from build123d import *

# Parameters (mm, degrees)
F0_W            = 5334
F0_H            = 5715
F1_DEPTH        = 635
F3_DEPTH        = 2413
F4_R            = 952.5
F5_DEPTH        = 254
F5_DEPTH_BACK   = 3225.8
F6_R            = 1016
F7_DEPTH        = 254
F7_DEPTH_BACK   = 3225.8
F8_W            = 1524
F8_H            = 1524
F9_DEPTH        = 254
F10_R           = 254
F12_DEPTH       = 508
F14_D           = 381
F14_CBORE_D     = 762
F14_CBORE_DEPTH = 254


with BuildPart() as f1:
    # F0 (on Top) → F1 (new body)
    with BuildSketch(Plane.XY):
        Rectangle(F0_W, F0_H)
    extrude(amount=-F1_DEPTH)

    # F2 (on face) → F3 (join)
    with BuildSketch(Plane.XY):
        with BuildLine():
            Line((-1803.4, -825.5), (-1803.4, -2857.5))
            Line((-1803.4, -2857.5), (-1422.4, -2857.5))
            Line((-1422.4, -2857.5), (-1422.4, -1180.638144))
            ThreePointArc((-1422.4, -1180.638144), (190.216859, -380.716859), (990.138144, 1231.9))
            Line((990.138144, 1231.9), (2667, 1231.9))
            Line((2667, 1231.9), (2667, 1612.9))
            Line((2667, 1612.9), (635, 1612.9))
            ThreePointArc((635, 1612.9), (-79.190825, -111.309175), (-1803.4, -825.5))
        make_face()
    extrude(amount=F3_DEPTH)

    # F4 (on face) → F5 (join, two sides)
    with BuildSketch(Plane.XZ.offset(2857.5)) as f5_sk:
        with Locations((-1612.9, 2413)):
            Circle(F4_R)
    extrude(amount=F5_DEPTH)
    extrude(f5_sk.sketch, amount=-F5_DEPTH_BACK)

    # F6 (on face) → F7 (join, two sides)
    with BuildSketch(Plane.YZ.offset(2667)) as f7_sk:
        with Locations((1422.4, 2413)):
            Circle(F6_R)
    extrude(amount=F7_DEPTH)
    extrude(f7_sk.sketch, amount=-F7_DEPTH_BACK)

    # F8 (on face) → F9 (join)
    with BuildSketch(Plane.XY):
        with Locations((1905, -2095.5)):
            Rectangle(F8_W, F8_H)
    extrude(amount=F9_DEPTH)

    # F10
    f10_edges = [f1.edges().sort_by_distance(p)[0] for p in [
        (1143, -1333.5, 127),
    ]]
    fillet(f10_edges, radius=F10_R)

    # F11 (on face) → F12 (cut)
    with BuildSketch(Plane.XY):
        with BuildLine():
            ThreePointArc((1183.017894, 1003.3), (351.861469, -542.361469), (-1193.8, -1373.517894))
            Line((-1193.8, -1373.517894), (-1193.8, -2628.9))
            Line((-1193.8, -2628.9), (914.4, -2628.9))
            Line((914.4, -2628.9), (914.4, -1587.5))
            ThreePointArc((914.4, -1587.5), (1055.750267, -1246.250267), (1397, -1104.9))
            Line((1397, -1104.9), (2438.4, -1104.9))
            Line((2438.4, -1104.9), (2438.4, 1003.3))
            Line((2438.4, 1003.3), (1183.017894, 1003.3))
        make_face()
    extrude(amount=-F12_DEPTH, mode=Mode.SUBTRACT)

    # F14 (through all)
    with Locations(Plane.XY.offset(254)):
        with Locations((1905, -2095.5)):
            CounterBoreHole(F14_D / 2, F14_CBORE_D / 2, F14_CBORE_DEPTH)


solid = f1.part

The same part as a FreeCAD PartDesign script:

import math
import FreeCAD as App
import Part
import Sketcher

V = App.Vector
Q = App.Units.Quantity


def edges_at(feature, points):
    """Names of the edges that pass closest to the given points."""
    edges = feature.Shape.Edges
    near = lambda p: min(range(len(edges)), key=lambda i: edges[i].distToShape(Part.Vertex(*p))[0])
    return sorted({f"Edge{near(p) + 1}" for p in points})


def add_polygon(sketch, points):
    """Adds a closed chain of lines whose ends are joined by coincident constraints."""
    first, n = sketch.GeometryCount, len(points)
    for a, b in zip(points, points[1:] + points[:1]):
        sketch.addGeometry(Part.LineSegment(App.Vector(*a, 0), App.Vector(*b, 0)), False)
    for i in range(n):
        sketch.addConstraint(Sketcher.Constraint("Coincident", first + i, 2, first + (i + 1) % n, 1))

doc = App.newDocument("Part")
body = doc.addObject("PartDesign::Body", "Body")

# Sketch on XY plane
sketch1 = body.newObject("Sketcher::SketchObject", "Sketch")
sketch1.AttachmentSupport = (doc.getObject("XY_Plane"), [""])
sketch1.MapMode = "FlatFace"
add_polygon(sketch1, [(-2667, 2858), (-2667, -2858), (2667, -2858), (2667, 2858)])  # lines 0-3
sketch1.addConstraint(Sketcher.Constraint("Vertical", 0))
sketch1.addConstraint(Sketcher.Constraint("Horizontal", 1))
sketch1.addConstraint(Sketcher.Constraint("Vertical", 2))
sketch1.addConstraint(Sketcher.Constraint("Horizontal", 3))
sketch1.addConstraint(Sketcher.Constraint("Symmetric", 0, 2, 2, 2, -1, 1))
sketch1.addConstraint(Sketcher.Constraint("DistanceX", 1, 1, 1, 2, Q("210 in")))
sketch1.addConstraint(Sketcher.Constraint("DistanceY", 0, 2, 0, 1, Q("225 in")))
pad1 = body.newObject("PartDesign::Pad", "Pad")
pad1.Profile = sketch1
pad1.Length = Q("25 in")
pad1.Reversed = True

# Sketch on XY plane
sketch2 = body.newObject("Sketcher::SketchObject", "Sketch001")
sketch2.AttachmentSupport = (doc.getObject("XY_Plane"), [""])
sketch2.MapMode = "FlatFace"
sketch2.addGeometry(Part.LineSegment(V(-1803, -826, 0), V(-1803, -2858, 0)), False)
sketch2.addGeometry(Part.LineSegment(V(-1803, -2858, 0), V(-1422, -2858, 0)), False)
sketch2.addGeometry(Part.LineSegment(V(-1422, -2858, 0), V(-1422, -1181, 0)), False)
sketch2.addGeometry(Part.ArcOfCircle(Part.Circle(V(-1803, 1613, 0), V(0, 0, 1), 2819), math.radians(-82), math.radians(-8)), False)
sketch2.addGeometry(Part.LineSegment(V(990, 1232, 0), V(2667, 1232, 0)), False)
sketch2.addGeometry(Part.LineSegment(V(2667, 1232, 0), V(2667, 1613, 0)), False)
sketch2.addGeometry(Part.LineSegment(V(2667, 1613, 0), V(635, 1613, 0)), False)
sketch2.addGeometry(Part.ArcOfCircle(Part.Circle(V(-1803, 1613, 0), V(0, 0, 1), 2438), math.radians(-90), math.radians(0)), False)
sketch2.addConstraint(Sketcher.Constraint("Coincident", 0, 2, 1, 1))
sketch2.addConstraint(Sketcher.Constraint("Coincident", 1, 2, 2, 1))
sketch2.addConstraint(Sketcher.Constraint("Coincident", 2, 2, 3, 1))
sketch2.addConstraint(Sketcher.Constraint("Coincident", 3, 2, 4, 1))
sketch2.addConstraint(Sketcher.Constraint("Coincident", 4, 2, 5, 1))
sketch2.addConstraint(Sketcher.Constraint("Coincident", 5, 2, 6, 1))
sketch2.addConstraint(Sketcher.Constraint("Coincident", 6, 2, 7, 2))
sketch2.addConstraint(Sketcher.Constraint("Coincident", 7, 1, 0, 1))
sketch2.addConstraint(Sketcher.Constraint("Vertical", 0))
sketch2.addConstraint(Sketcher.Constraint("Horizontal", 1))
sketch2.addConstraint(Sketcher.Constraint("Vertical", 2))
sketch2.addConstraint(Sketcher.Constraint("Horizontal", 4))
sketch2.addConstraint(Sketcher.Constraint("Vertical", 5))
sketch2.addConstraint(Sketcher.Constraint("Horizontal", 6))
sketch2.addConstraint(Sketcher.Constraint("Coincident", 7, 3, 3, 3))
sketch2.addConstraint(Sketcher.Constraint("Horizontal", 7, 3, 5, 2))
sketch2.addConstraint(Sketcher.Constraint("Vertical", 7, 3, 0, 2))
sketch2.addConstraint(Sketcher.Constraint("Equal", 6, 0))
sketch2.addConstraint(Sketcher.Constraint("Equal", 4, 2))
sketch2.addConstraint(Sketcher.Constraint("Radius", 3, Q("111 in")))
sketch2.addConstraint(Sketcher.Constraint("Radius", 7, Q("96 in")))
sketch2.addConstraint(Sketcher.Constraint("DistanceX", 1, 1, 1, 2, Q("15 in")))
sketch2.addConstraint(Sketcher.Constraint("DistanceX", 6, 2, 6, 1, Q("80 in")))
sketch2.addConstraint(Sketcher.Constraint("DistanceX", 3, 3, -1, 1, Q("71 in")))
sketch2.addConstraint(Sketcher.Constraint("DistanceY", -1, 1, 3, 3, Q("63.5 in")))
pad2 = body.newObject("PartDesign::Pad", "Pad001")
pad2.Profile = sketch2
pad2.Length = Q("95 in")

# Sketch on XZ plane
sketch3 = body.newObject("Sketcher::SketchObject", "Sketch002")
sketch3.AttachmentSupport = (doc.getObject("XZ_Plane"), [""])
sketch3.MapMode = "FlatFace"
sketch3.AttachmentOffset = App.Placement(V(0, 0, 112.5 * 25.4), App.Rotation())
sketch3.addGeometry(Part.Circle(V(-1613, 2413, 0), V(0, 0, 1), 952), False)
sketch3.addConstraint(Sketcher.Constraint("Diameter", 0, Q("75 in")))
sketch3.addConstraint(Sketcher.Constraint("DistanceY", -1, 1, 0, 3, Q("95 in")))
sketch3.addConstraint(Sketcher.Constraint("DistanceX", 0, 3, -1, 1, Q("63.5 in")))
pad3 = body.newObject("PartDesign::Pad", "Pad002")
pad3.Profile = sketch3
pad3.Type = "TwoLengths"
pad3.Length = Q("10 in")
pad3.Length2 = Q("127 in")

# Sketch on YZ plane
sketch4 = body.newObject("Sketcher::SketchObject", "Sketch003")
sketch4.AttachmentSupport = (doc.getObject("YZ_Plane"), [""])
sketch4.MapMode = "FlatFace"
sketch4.AttachmentOffset = App.Placement(V(0, 0, 105 * 25.4), App.Rotation())
sketch4.addGeometry(Part.Circle(V(1422, 2413, 0), V(0, 0, 1), 1016), False)
sketch4.addConstraint(Sketcher.Constraint("Diameter", 0, Q("80 in")))
sketch4.addConstraint(Sketcher.Constraint("DistanceX", -1, 1, 0, 3, Q("56 in")))
sketch4.addConstraint(Sketcher.Constraint("DistanceY", -1, 1, 0, 3, Q("95 in")))
pad4 = body.newObject("PartDesign::Pad", "Pad003")
pad4.Profile = sketch4
pad4.Type = "TwoLengths"
pad4.Length = Q("10 in")
pad4.Length2 = Q("127 in")

# Sketch on XY plane
sketch5 = body.newObject("Sketcher::SketchObject", "Sketch004")
sketch5.AttachmentSupport = (doc.getObject("XY_Plane"), [""])
sketch5.MapMode = "FlatFace"
add_polygon(sketch5, [(1143, -1334), (1143, -2858), (2667, -2858), (2667, -1334)])  # lines 0-3
sketch5.addConstraint(Sketcher.Constraint("Vertical", 0))
sketch5.addConstraint(Sketcher.Constraint("Horizontal", 1))
sketch5.addConstraint(Sketcher.Constraint("Vertical", 2))
sketch5.addConstraint(Sketcher.Constraint("Horizontal", 3))
sketch5.addConstraint(Sketcher.Constraint("Equal", 3, 0))
sketch5.addConstraint(Sketcher.Constraint("DistanceX", 1, 1, 1, 2, Q("60 in")))
sketch5.addConstraint(Sketcher.Constraint("DistanceX", -1, 1, 0, 2, Q("45 in")))
sketch5.addConstraint(Sketcher.Constraint("DistanceY", 0, 2, -1, 1, Q("112.5 in")))
pad5 = body.newObject("PartDesign::Pad", "Pad004")
pad5.Profile = sketch5
pad5.Length = Q("10 in")
doc.recompute()

fillet = body.newObject("PartDesign::Fillet", "Fillet")
fillet.Base = (pad5, edges_at(pad5, [(1143, -1333.5, 127)]))
fillet.Radius = Q("10 in")

# Sketch on XY plane
sketch6 = body.newObject("Sketcher::SketchObject", "Sketch005")
sketch6.AttachmentSupport = (doc.getObject("XY_Plane"), [""])
sketch6.MapMode = "FlatFace"
sketch6.addGeometry(Part.ArcOfCircle(Part.Circle(V(-1803, 1613, 0), V(0, 0, 1), 3048), math.radians(-78), math.radians(-12)), False)
sketch6.addGeometry(Part.LineSegment(V(-1194, -1374, 0), V(-1194, -2629, 0)), False)
sketch6.addGeometry(Part.LineSegment(V(-1194, -2629, 0), V(914, -2629, 0)), False)
sketch6.addGeometry(Part.LineSegment(V(914, -2629, 0), V(914, -1588, 0)), False)
sketch6.addGeometry(Part.ArcOfCircle(Part.Circle(V(1397, -1587, 0), V(0, 0, 1), 483), math.radians(90), math.radians(180)), False)
sketch6.addGeometry(Part.LineSegment(V(1397, -1105, 0), V(2438, -1105, 0)), False)
sketch6.addGeometry(Part.LineSegment(V(2438, -1105, 0), V(2438, 1003, 0)), False)
sketch6.addGeometry(Part.LineSegment(V(2438, 1003, 0), V(1183, 1003, 0)), False)
sketch6.addConstraint(Sketcher.Constraint("Coincident", 0, 1, 1, 1))
sketch6.addConstraint(Sketcher.Constraint("Coincident", 1, 2, 2, 1))
sketch6.addConstraint(Sketcher.Constraint("Coincident", 2, 2, 3, 1))
sketch6.addConstraint(Sketcher.Constraint("Tangent", 3, 2, 4, 2))
sketch6.addConstraint(Sketcher.Constraint("Tangent", 4, 1, 5, 1))
sketch6.addConstraint(Sketcher.Constraint("Coincident", 5, 2, 6, 1))
sketch6.addConstraint(Sketcher.Constraint("Coincident", 6, 2, 7, 1))
sketch6.addConstraint(Sketcher.Constraint("Coincident", 7, 2, 0, 2))
sketch6.addConstraint(Sketcher.Constraint("Vertical", 1))
sketch6.addConstraint(Sketcher.Constraint("Horizontal", 2))
sketch6.addConstraint(Sketcher.Constraint("Vertical", 3))
sketch6.addConstraint(Sketcher.Constraint("Horizontal", 5))
sketch6.addConstraint(Sketcher.Constraint("Vertical", 6))
sketch6.addConstraint(Sketcher.Constraint("Horizontal", 7))
sketch6.addConstraint(Sketcher.Constraint("Equal", 7, 1))
sketch6.addConstraint(Sketcher.Constraint("Equal", 5, 3))
sketch6.addConstraint(Sketcher.Constraint("Equal", 2, 6))
sketch6.addConstraint(Sketcher.Constraint("Radius", 0, Q("119.9999999 in")))
sketch6.addConstraint(Sketcher.Constraint("Radius", 4, Q("18.9999999 in")))
sketch6.addConstraint(Sketcher.Constraint("DistanceX", 2, 1, 2, 2, Q("83 in")))
sketch6.addConstraint(Sketcher.Constraint("DistanceX", 5, 1, 5, 2, Q("41 in")))
sketch6.addConstraint(Sketcher.Constraint("DistanceX", 0, 3, -1, 1, Q("70.9999999 in")))
sketch6.addConstraint(Sketcher.Constraint("DistanceX", -1, 1, 4, 3, Q("54.9999999 in")))
sketch6.addConstraint(Sketcher.Constraint("DistanceY", -1, 1, 0, 3, Q("63.4999999 in")))
pocket1 = body.newObject("PartDesign::Pocket", "Pocket")
pocket1.Profile = sketch6
pocket1.Length = Q("20 in")

# Sketch on XY plane
sketch7 = body.newObject("Sketcher::SketchObject", "Sketch006")
sketch7.AttachmentSupport = (doc.getObject("XY_Plane"), [""])
sketch7.MapMode = "FlatFace"
sketch7.AttachmentOffset = App.Placement(V(0, 0, 10 * 25.4), App.Rotation())
sketch7.addGeometry(Part.Circle(V(1905, -2096, 0), V(0, 0, 1), 190), False)
sketch7.addConstraint(Sketcher.Constraint("Diameter", 0, Q("15 in")))
sketch7.addConstraint(Sketcher.Constraint("DistanceX", -1, 1, 0, 3, Q("75 in")))
sketch7.addConstraint(Sketcher.Constraint("DistanceY", 0, 3, -1, 1, Q("82.5 in")))
doc.recompute()
hole = body.newObject("PartDesign::Hole", "Hole")
hole.Profile = sketch7
hole.ThreadType = "None"
hole.Diameter = Q("15 in")
hole.DepthType = "ThroughAll"
hole.HoleCutType = "Counterbore"
hole.HoleCutDiameter = Q("30 in")
hole.HoleCutDepth = Q("10 in")

doc.recompute()
